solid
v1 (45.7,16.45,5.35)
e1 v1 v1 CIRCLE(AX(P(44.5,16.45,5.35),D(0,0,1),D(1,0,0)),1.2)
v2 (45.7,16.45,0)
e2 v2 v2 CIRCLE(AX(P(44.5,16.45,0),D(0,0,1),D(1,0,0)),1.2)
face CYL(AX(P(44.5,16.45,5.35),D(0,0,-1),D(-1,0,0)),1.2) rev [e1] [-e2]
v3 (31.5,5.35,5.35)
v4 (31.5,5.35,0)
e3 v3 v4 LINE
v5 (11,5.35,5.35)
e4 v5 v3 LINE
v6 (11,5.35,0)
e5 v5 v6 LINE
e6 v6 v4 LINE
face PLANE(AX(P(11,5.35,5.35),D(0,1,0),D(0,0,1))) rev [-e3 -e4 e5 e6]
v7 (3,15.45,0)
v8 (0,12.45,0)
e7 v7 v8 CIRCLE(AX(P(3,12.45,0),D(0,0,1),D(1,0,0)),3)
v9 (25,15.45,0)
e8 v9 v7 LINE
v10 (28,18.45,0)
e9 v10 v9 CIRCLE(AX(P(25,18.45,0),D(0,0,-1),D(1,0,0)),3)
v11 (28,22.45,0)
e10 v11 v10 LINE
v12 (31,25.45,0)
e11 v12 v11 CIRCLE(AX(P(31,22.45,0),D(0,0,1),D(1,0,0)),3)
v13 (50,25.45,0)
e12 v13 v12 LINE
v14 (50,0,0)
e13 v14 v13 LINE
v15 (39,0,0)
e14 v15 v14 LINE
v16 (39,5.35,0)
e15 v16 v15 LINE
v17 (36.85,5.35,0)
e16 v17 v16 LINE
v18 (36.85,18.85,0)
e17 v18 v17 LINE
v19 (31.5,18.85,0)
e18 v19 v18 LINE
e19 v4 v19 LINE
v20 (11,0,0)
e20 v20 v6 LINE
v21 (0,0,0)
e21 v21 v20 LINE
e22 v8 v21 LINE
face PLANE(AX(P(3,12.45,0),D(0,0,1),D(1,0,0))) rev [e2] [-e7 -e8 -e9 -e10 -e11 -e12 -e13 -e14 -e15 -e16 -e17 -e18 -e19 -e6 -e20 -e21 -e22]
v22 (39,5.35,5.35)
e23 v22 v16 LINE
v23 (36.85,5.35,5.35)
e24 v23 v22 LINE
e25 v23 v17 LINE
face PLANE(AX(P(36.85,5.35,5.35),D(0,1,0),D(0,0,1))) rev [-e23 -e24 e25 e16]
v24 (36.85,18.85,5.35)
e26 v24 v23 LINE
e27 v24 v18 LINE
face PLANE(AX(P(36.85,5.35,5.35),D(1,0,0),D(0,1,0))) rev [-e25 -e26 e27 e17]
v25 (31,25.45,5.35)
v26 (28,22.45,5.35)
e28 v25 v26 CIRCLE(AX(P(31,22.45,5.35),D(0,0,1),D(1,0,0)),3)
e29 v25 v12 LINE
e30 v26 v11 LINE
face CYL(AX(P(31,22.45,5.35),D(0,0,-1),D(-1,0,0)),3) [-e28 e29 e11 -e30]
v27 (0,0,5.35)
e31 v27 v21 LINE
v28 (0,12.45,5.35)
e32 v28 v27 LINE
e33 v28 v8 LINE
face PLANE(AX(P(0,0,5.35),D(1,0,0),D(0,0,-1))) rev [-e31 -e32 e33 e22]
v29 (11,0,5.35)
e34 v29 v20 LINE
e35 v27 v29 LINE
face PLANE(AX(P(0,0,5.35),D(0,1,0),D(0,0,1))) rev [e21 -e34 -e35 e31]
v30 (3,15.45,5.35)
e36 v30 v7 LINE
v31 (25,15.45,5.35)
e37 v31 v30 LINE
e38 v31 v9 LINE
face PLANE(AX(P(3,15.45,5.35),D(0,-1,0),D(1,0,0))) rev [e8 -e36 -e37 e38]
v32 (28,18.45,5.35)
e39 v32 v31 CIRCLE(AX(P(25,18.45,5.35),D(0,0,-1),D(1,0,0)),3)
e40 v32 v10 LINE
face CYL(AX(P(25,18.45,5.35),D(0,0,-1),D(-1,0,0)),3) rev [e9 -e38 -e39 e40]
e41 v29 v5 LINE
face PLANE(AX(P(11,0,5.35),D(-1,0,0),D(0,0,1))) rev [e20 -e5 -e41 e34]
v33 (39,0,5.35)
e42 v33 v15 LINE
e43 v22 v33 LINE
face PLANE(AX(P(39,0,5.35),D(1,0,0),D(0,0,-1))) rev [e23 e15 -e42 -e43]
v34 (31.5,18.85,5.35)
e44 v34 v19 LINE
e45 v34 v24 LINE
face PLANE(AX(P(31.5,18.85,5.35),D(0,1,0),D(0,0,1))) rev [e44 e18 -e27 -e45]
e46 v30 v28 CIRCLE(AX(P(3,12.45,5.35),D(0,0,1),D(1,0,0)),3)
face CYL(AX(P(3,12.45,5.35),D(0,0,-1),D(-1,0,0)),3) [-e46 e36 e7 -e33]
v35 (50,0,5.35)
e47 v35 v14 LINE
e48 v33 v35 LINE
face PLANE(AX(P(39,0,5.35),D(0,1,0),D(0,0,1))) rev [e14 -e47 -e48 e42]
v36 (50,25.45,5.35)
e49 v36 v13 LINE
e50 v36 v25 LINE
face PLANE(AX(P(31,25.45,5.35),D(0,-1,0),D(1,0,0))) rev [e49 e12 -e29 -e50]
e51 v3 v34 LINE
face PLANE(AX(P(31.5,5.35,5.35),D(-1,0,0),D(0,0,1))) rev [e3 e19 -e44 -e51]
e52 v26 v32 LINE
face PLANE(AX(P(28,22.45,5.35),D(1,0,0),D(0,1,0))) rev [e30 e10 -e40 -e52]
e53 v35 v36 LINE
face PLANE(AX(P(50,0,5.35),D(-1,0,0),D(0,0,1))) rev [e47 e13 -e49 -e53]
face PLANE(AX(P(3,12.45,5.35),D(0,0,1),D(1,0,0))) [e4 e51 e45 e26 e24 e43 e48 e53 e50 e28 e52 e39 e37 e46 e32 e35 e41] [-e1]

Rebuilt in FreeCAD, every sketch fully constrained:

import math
import FreeCAD as App
import Part
import Sketcher

doc = App.newDocument("Part")
body = doc.addObject("PartDesign::Body", "Body")

# Sketch on XY plane
sketch1 = doc.addObject("Sketcher::SketchObject", "Sketch")
body.addObject(sketch1)
sketch1.AttachmentSupport = (doc.XY_Plane, [""])
sketch1.MapMode = "FlatFace"
sketch1.addGeometry(Part.LineSegment(App.Vector(39, 0, 0), App.Vector(50, 0, 0)), False)
sketch1.addGeometry(Part.LineSegment(App.Vector(50, 0, 0), App.Vector(50, 25.4, 0)), False)
sketch1.addGeometry(Part.LineSegment(App.Vector(50, 25.4, 0), App.Vector(31, 25.4, 0)), False)
sketch1.addGeometry(Part.ArcOfCircle(Part.Circle(App.Vector(31, 22.5, 0), App.Vector(0, 0, 1), 3), math.radians(90), math.radians(180)), False)
sketch1.addGeometry(Part.LineSegment(App.Vector(28, 22.4, 0), App.Vector(28, 18.4, 0)), False)
sketch1.addGeometry(Part.ArcOfCircle(Part.Circle(App.Vector(25, 18.4, 0), App.Vector(0, 0, 1), 3), math.radians(-90), math.radians(0)), False)
sketch1.addGeometry(Part.LineSegment(App.Vector(25, 15.4, 0), App.Vector(3, 15.4, 0)), False)
sketch1.addGeometry(Part.ArcOfCircle(Part.Circle(App.Vector(3, 12.5, 0), App.Vector(0, 0, 1), 3), math.radians(90), math.radians(180)), False)
sketch1.addGeometry(Part.LineSegment(App.Vector(0, 12.4, 0), App.Vector(0, 0, 0)), False)
sketch1.addGeometry(Part.LineSegment(App.Vector(0, 0, 0), App.Vector(11, 0, 0)), False)
sketch1.addGeometry(Part.LineSegment(App.Vector(11, 0, 0), App.Vector(11, 5.3, 0)), False)
sketch1.addGeometry(Part.LineSegment(App.Vector(11, 5.3, 0), App.Vector(31.5, 5.3, 0)), False)
sketch1.addGeometry(Part.LineSegment(App.Vector(31.5, 5.3, 0), App.Vector(31.5, 18.9, 0)), False)
sketch1.addGeometry(Part.LineSegment(App.Vector(31.5, 18.9, 0), App.Vector(36.9, 18.9, 0)), False)
sketch1.addGeometry(Part.LineSegment(App.Vector(36.9, 18.9, 0), App.Vector(36.9, 5.3, 0)), False)
sketch1.addGeometry(Part.LineSegment(App.Vector(36.9, 5.3, 0), App.Vector(39, 5.3, 0)), False)
sketch1.addGeometry(Part.LineSegment(App.Vector(39, 5.3, 0), App.Vector(39, 0, 0)), False)
sketch1.addGeometry(Part.Circle(App.Vector(44.5, 16.4, 0), App.Vector(0, 0, 1), 1.2), False)
sketch1.addConstraint(Sketcher.Constraint("Coincident", 0, 2, 1, 1))
sketch1.addConstraint(Sketcher.Constraint("Coincident", 1, 2, 2, 1))
sketch1.addConstraint(Sketcher.Constraint("Tangent", 2, 2, 3, 1))
sketch1.addConstraint(Sketcher.Constraint("Tangent", 3, 2, 4, 1))
sketch1.addConstraint(Sketcher.Constraint("Tangent", 4, 2, 5, 2))
sketch1.addConstraint(Sketcher.Constraint("Tangent", 5, 1, 6, 1))
sketch1.addConstraint(Sketcher.Constraint("Tangent", 6, 2, 7, 1))
sketch1.addConstraint(Sketcher.Constraint("Tangent", 7, 2, 8, 1))
sketch1.addConstraint(Sketcher.Constraint("Coincident", 8, 2, 9, 1))
sketch1.addConstraint(Sketcher.Constraint("Coincident", 9, 2, 10, 1))
sketch1.addConstraint(Sketcher.Constraint("Coincident", 10, 2, 11, 1))
sketch1.addConstraint(Sketcher.Constraint("Coincident", 11, 2, 12, 1))
sketch1.addConstraint(Sketcher.Constraint("Coincident", 12, 2, 13, 1))
sketch1.addConstraint(Sketcher.Constraint("Coincident", 13, 2, 14, 1))
sketch1.addConstraint(Sketcher.Constraint("Coincident", 14, 2, 15, 1))
sketch1.addConstraint(Sketcher.Constraint("Coincident", 15, 2, 16, 1))
sketch1.addConstraint(Sketcher.Constraint("Coincident", 16, 2, 0, 1))
sketch1.addConstraint(Sketcher.Constraint("Horizontal", 0))
sketch1.addConstraint(Sketcher.Constraint("Vertical", 1))
sketch1.addConstraint(Sketcher.Constraint("Horizontal", 2))
sketch1.addConstraint(Sketcher.Constraint("Vertical", 4))
sketch1.addConstraint(Sketcher.Constraint("Horizontal", 6))
sketch1.addConstraint(Sketcher.Constraint("Vertical", 8))
sketch1.addConstraint(Sketcher.Constraint("Horizontal", 9))
sketch1.addConstraint(Sketcher.Constraint("Vertical", 10))
sketch1.addConstraint(Sketcher.Constraint("Horizontal", 11))
sketch1.addConstraint(Sketcher.Constraint("Vertical", 12))
sketch1.addConstraint(Sketcher.Constraint("Horizontal", 13))
sketch1.addConstraint(Sketcher.Constraint("Vertical", 14))
sketch1.addConstraint(Sketcher.Constraint("Horizontal", 15))
sketch1.addConstraint(Sketcher.Constraint("Vertical", 16))
sketch1.addConstraint(Sketcher.Constraint("Coincident", 8, 2, -1, 1))
sketch1.addConstraint(Sketcher.Constraint("Equal", 3, 5))
sketch1.addConstraint(Sketcher.Constraint("Equal", 5, 7))
sketch1.addConstraint(Sketcher.Constraint("PointOnObject", 0, 2, -1))
sketch1.addConstraint(Sketcher.Constraint("Horizontal", 11, 2, 14, 2))
sketch1.addConstraint(Sketcher.Constraint("Equal", 0, 9))
sketch1.addConstraint(Sketcher.Constraint("Equal", 13, 10))
sketch1.addConstraint(Sketcher.Constraint("Radius", 3, 3.0))
sketch1.addConstraint(Sketcher.Constraint("Diameter", 17, 2.4))
sketch1.addConstraint(Sketcher.Constraint("DistanceX", 0, 1, 0, 2, 11.0))
sketch1.addConstraint(Sketcher.Constraint("DistanceX", 2, 2, 2, 1, 19.0))
sketch1.addConstraint(Sketcher.Constraint("DistanceX", 6, 2, 6, 1, 22.0))
sketch1.addConstraint(Sketcher.Constraint("DistanceY", 4, 2, 4, 1, 4.0))
sketch1.addConstraint(Sketcher.Constraint("DistanceX", 11, 1, 11, 2, 20.5))
sketch1.addConstraint(Sketcher.Constraint("DistanceY", 12, 1, 12, 2, 13.5))
sketch1.addConstraint(Sketcher.Constraint("DistanceY", 17, 3, 3, 3, 6.0))
sketch1.addConstraint(Sketcher.Constraint("DistanceX", 11, 2, 17, 3, 13.0))
sketch1.addConstraint(Sketcher.Constraint("DistanceX", 13, 1, 13, 2, 5.35))
sketch1.addConstraint(Sketcher.Constraint("DistanceY", 1, 1, 1, 2, 25.45))
pad1 = doc.addObject("PartDesign::Pad", "Pad")
body.addObject(pad1)
pad1.Profile = sketch1
pad1.Length = 5.35

doc.recompute()
